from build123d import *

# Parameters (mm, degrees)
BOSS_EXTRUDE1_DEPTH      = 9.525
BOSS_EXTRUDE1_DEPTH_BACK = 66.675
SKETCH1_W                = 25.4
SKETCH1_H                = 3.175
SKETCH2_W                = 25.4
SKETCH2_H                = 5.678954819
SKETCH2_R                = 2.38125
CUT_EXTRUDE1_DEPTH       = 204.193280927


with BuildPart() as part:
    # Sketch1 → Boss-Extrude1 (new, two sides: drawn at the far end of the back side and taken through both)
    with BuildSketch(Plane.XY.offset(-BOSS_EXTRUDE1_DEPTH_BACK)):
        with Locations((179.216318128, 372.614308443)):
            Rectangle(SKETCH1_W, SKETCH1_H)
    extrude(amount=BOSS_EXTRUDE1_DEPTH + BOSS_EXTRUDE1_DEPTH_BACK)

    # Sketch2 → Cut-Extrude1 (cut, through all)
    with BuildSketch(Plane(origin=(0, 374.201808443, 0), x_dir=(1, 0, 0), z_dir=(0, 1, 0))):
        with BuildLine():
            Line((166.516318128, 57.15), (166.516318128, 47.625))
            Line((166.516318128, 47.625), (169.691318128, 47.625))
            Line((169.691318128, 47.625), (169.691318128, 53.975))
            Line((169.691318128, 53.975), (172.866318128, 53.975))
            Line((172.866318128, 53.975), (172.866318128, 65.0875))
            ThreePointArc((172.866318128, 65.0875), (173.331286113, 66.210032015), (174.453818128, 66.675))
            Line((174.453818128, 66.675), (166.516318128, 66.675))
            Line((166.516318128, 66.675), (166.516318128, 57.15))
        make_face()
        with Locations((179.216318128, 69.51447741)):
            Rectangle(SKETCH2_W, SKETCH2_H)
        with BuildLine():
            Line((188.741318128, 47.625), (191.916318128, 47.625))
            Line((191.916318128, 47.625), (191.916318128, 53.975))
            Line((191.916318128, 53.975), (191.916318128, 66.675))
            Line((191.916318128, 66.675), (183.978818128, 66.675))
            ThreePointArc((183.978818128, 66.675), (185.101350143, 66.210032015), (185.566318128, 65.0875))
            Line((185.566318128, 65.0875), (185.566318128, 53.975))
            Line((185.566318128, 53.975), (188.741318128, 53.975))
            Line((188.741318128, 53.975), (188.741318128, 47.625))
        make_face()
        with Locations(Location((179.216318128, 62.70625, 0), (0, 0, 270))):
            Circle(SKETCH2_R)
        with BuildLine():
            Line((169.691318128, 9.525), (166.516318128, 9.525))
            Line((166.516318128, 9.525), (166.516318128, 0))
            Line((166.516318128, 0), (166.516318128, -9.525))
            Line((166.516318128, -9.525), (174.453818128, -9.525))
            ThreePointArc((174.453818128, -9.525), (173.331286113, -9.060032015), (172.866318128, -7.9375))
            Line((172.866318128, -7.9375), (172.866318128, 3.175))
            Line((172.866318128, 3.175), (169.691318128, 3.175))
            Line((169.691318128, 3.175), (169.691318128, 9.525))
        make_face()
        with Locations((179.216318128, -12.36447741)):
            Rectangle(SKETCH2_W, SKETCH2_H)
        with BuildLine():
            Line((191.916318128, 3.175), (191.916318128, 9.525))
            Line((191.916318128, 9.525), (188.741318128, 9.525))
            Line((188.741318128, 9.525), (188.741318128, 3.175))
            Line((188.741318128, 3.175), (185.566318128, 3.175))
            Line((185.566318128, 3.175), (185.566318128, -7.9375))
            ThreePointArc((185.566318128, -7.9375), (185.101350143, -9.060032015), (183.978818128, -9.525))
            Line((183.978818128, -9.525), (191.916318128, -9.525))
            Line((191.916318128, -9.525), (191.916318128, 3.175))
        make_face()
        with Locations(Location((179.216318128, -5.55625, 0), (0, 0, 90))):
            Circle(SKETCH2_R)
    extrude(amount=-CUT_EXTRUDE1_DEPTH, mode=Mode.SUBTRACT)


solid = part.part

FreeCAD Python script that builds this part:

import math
import FreeCAD as App
import Part
import Sketcher

V = App.Vector
Q = App.Units.Quantity

doc = App.newDocument("Part")
body = doc.addObject("PartDesign::Body", "Body")

sketch1 = body.newObject("Sketcher::SketchObject", "Sketch")
sketch1.AttachmentSupport = (doc.getObject("XY_Plane"), [""])
sketch1.MapMode = "FlatFace"
sketch1.addGeometry([
    Part.LineSegment(V(166.5, 374.2, 0), V(166.5, 371, 0)),
    Part.LineSegment(V(166.5, 371, 0), V(191.9, 371, 0)),
    Part.LineSegment(V(191.9, 371, 0), V(191.9, 374.2, 0)),
    Part.LineSegment(V(191.9, 374.2, 0), V(166.5, 374.2, 0)),
], False)
sketch1.addConstraint([
    Sketcher.Constraint("Coincident", 0, 2, 1, 1),
    Sketcher.Constraint("Coincident", 1, 2, 2, 1),
    Sketcher.Constraint("Coincident", 2, 2, 3, 1),
    Sketcher.Constraint("Coincident", 3, 2, 0, 1),
    Sketcher.Constraint("Vertical", 0),
    Sketcher.Constraint("Horizontal", 1),
    Sketcher.Constraint("Vertical", 2),
    Sketcher.Constraint("Horizontal", 3),
    Sketcher.Constraint("DistanceX", 1, 1, 1, 2, Q("1 in")),
    Sketcher.Constraint("DistanceY", 0, 2, 0, 1, Q("0.125 in")),
    Sketcher.Constraint("DistanceX", -1, 1, 0, 2, 166.516318),
    Sketcher.Constraint("DistanceY", -1, 1, 0, 2, 371.026808),
])
pad1 = body.newObject("PartDesign::Pad", "Pad")
pad1.Profile = sketch1
pad1.Type = "TwoLengths"
pad1.Length = Q("0.375 in")
pad1.Length2 = Q("2.625 in")

sketch2 = body.newObject("Sketcher::SketchObject", "Sketch001")
sketch2.AttachmentSupport = (doc.getObject("XZ_Plane"), [""])
sketch2.MapMode = "FlatFace"
sketch2.AttachmentOffset = App.Placement(V(0, 0, -374.201808), App.Rotation())
sketch2.addGeometry([
    Part.LineSegment(V(166.5, -47.6, 0), V(169.7, -47.6, 0)),
    Part.LineSegment(V(169.7, -47.6, 0), V(169.7, -54, 0)),
    Part.LineSegment(V(169.7, -54, 0), V(172.9, -54, 0)),
    Part.LineSegment(V(172.9, -54, 0), V(172.9, -65.1, 0)),
    Part.ArcOfCircle(Part.Circle(V(174.5, -65.1, 0), V(0, 0, 1), 1.6), math.radians(180), math.radians(270)),
    Part.LineSegment(V(174.5, -66.7, 0), V(184, -66.7, 0)),
    Part.ArcOfCircle(Part.Circle(V(184, -65.1, 0), V(0, 0, 1), 1.6), math.radians(-90), math.radians(0)),
    Part.LineSegment(V(185.6, -65.1, 0), V(185.6, -54, 0)),
    Part.LineSegment(V(185.6, -54, 0), V(188.7, -54, 0)),
    Part.LineSegment(V(188.7, -54, 0), V(188.7, -47.6, 0)),
    Part.LineSegment(V(188.7, -47.6, 0), V(191.9, -47.6, 0)),
    Part.LineSegment(V(191.9, -47.6, 0), V(191.9, -72.4, 0)),
    Part.LineSegment(V(191.9, -72.4, 0), V(166.5, -72.4, 0)),
    Part.LineSegment(V(166.5, -72.4, 0), V(166.5, -47.6, 0)),
    Part.Circle(V(179.2, -62.7, 0), V(0, 0, 1), 2.4),
    Part.LineSegment(V(169.7, -9.5, 0), V(166.5, -9.5, 0)),
    Part.LineSegment(V(166.5, -9.5, 0), V(166.5, 15.2, 0)),
    Part.LineSegment(V(166.5, 15.2, 0), V(191.9, 15.2, 0)),
    Part.LineSegment(V(191.9, 15.2, 0), V(191.9, -9.5, 0)),
    Part.LineSegment(V(191.9, -9.5, 0), V(188.7, -9.5, 0)),
    Part.LineSegment(V(188.7, -9.5, 0), V(188.7, -3.2, 0)),
    Part.LineSegment(V(188.7, -3.2, 0), V(185.6, -3.2, 0)),
    Part.LineSegment(V(185.6, -3.2, 0), V(185.6, 7.9, 0)),
    Part.ArcOfCircle(Part.Circle(V(184, 7.9, 0), V(0, 0, 1), 1.6), math.radians(0), math.radians(90)),
    Part.LineSegment(V(184, 9.5, 0), V(174.5, 9.5, 0)),
    Part.ArcOfCircle(Part.Circle(V(174.5, 7.9, 0), V(0, 0, 1), 1.6), math.radians(90), math.radians(180)),
    Part.LineSegment(V(172.9, 7.9, 0), V(172.9, -3.2, 0)),
    Part.LineSegment(V(172.9, -3.2, 0), V(169.7, -3.2, 0)),
    Part.LineSegment(V(169.7, -3.2, 0), V(169.7, -9.5, 0)),
    Part.Circle(V(179.2, 5.6, 0), V(0, 0, 1), 2.4),
], False)
sketch2.addConstraint([
    Sketcher.Constraint("Coincident", 0, 2, 1, 1),
    Sketcher.Constraint("Coincident", 1, 2, 2, 1),
    Sketcher.Constraint("Coincident", 2, 2, 3, 1),
    Sketcher.Constraint("Tangent", 3, 2, 4, 1),
    Sketcher.Constraint("Tangent", 4, 2, 5, 1),
    Sketcher.Constraint("Tangent", 5, 2, 6, 1),
    Sketcher.Constraint("Tangent", 6, 2, 7, 1),
    Sketcher.Constraint("Coincident", 7, 2, 8, 1),
    Sketcher.Constraint("Coincident", 8, 2, 9, 1),
    Sketcher.Constraint("Coincident", 9, 2, 10, 1),
    Sketcher.Constraint("Coincident", 10, 2, 11, 1),
    Sketcher.Constraint("Coincident", 11, 2, 12, 1),
    Sketcher.Constraint("Coincident", 12, 2, 13, 1),
    Sketcher.Constraint("Coincident", 13, 2, 0, 1),
    Sketcher.Constraint("Coincident", 15, 2, 16, 1),
    Sketcher.Constraint("Coincident", 16, 2, 17, 1),
    Sketcher.Constraint("Coincident", 17, 2, 18, 1),
    Sketcher.Constraint("Coincident", 18, 2, 19, 1),
    Sketcher.Constraint("Coincident", 19, 2, 20, 1),
    Sketcher.Constraint("Coincident", 20, 2, 21, 1),
    Sketcher.Constraint("Coincident", 21, 2, 22, 1),
    Sketcher.Constraint("Tangent", 22, 2, 23, 1),
    Sketcher.Constraint("Tangent", 23, 2, 24, 1),
    Sketcher.Constraint("Tangent", 24, 2, 25, 1),
    Sketcher.Constraint("Tangent", 25, 2, 26, 1),
    Sketcher.Constraint("Coincident", 26, 2, 27, 1),
    Sketcher.Constraint("Coincident", 27, 2, 28, 1),
    Sketcher.Constraint("Coincident", 28, 2, 15, 1),
    Sketcher.Constraint("Horizontal", 0),
    Sketcher.Constraint("Vertical", 1),
    Sketcher.Constraint("Horizontal", 2),
    Sketcher.Constraint("Vertical", 3),
    Sketcher.Constraint("Horizontal", 5),
    Sketcher.Constraint("Vertical", 7),
    Sketcher.Constraint("Horizontal", 8),
    Sketcher.Constraint("Vertical", 9),
    Sketcher.Constraint("Horizontal", 10),
    Sketcher.Constraint("Vertical", 11),
    Sketcher.Constraint("Horizontal", 12),
    Sketcher.Constraint("Vertical", 13),
    Sketcher.Constraint("Horizontal", 15),
    Sketcher.Constraint("Vertical", 16),
    Sketcher.Constraint("Horizontal", 17),
    Sketcher.Constraint("Vertical", 18),
    Sketcher.Constraint("Horizontal", 19),
    Sketcher.Constraint("Vertical", 20),
    Sketcher.Constraint("Horizontal", 21),
    Sketcher.Constraint("Vertical", 22),
    Sketcher.Constraint("Horizontal", 24),
    Sketcher.Constraint("Vertical", 26),
    Sketcher.Constraint("Horizontal", 27),
    Sketcher.Constraint("Vertical", 28),
    Sketcher.Constraint("Equal", 4, 6),
    Sketcher.Constraint("Equal", 6, 23),
    Sketcher.Constraint("Equal", 23, 25),
    Sketcher.Constraint("Equal", 14, 29),
    Sketcher.Constraint("Horizontal", 2, 2, 7, 2),
    Sketcher.Constraint("Horizontal", 0, 2, 9, 2),
    Sketcher.Constraint("Horizontal", 15, 2, 18, 2),
    Sketcher.Constraint("Horizontal", 21, 2, 26, 2),
    Sketcher.Constraint("Vertical", 6, 3, 23, 3),
    Sketcher.Constraint("Vertical", 4, 3, 25, 3),
    Sketcher.Constraint("Vertical", 14, 3, 29, 3),
    Sketcher.Constraint("Vertical", 13, 2, 15, 2),
    Sketcher.Constraint("Vertical", 11, 2, 17, 2),
    Sketcher.Constraint("Vertical", 9, 2, 19, 2),
    Sketcher.Constraint("Vertical", 1, 2, 27, 2),
    Sketcher.Constraint("Equal", 0, 2),
    Sketcher.Constraint("Equal", 2, 8),
    Sketcher.Constraint("Equal", 8, 10),
    Sketcher.Constraint("Equal", 13, 16),
    Sketcher.Constraint("Equal", 9, 20),
    Sketcher.Constraint("Equal", 7, 22),
    Sketcher.Constraint("DistanceX", 12, 2, 12, 1, Q("1 in")),
    Sketcher.Constraint("Diameter", 14, Q("0.1875 in")),
    Sketcher.Constraint("Radius", 4, Q("0.0625 in")),
    Sketcher.Constraint("DistanceY", 1, 2, 1, 1, Q("0.25 in")),
    Sketcher.Constraint("DistanceY", 4, 2, 2, 2, Q("0.5 in")),
    Sketcher.Constraint("DistanceX", 2, 2, 7, 2, Q("0.5 in")),
    Sketcher.Constraint("DistanceX", 14, 3, 11, 2, Q("0.5 in")),
    Sketcher.Constraint("DistanceY", 13, 2, 15, 2, Q("1.5 in")),
    Sketcher.Constraint("DistanceY", 4, 3, -1, 1, Q("2.5625 in")),
    Sketcher.Constraint("DistanceY", 14, 3, -1, 1, Q("2.46875 in")),
    Sketcher.Constraint("DistanceY", -1, 1, 29, 3, Q("0.21875 in")),
    Sketcher.Constraint("DistanceY", 11, 2, 11, 1, 24.728955),
    Sketcher.Constraint("DistanceX", -1, 1, 4, 3, 174.453818),
])
pocket1 = body.newObject("PartDesign::Pocket", "Pocket")
pocket1.Profile = sketch2
pocket1.Type = "ThroughAll"
pocket1.Reversed = True

doc.recompute()
